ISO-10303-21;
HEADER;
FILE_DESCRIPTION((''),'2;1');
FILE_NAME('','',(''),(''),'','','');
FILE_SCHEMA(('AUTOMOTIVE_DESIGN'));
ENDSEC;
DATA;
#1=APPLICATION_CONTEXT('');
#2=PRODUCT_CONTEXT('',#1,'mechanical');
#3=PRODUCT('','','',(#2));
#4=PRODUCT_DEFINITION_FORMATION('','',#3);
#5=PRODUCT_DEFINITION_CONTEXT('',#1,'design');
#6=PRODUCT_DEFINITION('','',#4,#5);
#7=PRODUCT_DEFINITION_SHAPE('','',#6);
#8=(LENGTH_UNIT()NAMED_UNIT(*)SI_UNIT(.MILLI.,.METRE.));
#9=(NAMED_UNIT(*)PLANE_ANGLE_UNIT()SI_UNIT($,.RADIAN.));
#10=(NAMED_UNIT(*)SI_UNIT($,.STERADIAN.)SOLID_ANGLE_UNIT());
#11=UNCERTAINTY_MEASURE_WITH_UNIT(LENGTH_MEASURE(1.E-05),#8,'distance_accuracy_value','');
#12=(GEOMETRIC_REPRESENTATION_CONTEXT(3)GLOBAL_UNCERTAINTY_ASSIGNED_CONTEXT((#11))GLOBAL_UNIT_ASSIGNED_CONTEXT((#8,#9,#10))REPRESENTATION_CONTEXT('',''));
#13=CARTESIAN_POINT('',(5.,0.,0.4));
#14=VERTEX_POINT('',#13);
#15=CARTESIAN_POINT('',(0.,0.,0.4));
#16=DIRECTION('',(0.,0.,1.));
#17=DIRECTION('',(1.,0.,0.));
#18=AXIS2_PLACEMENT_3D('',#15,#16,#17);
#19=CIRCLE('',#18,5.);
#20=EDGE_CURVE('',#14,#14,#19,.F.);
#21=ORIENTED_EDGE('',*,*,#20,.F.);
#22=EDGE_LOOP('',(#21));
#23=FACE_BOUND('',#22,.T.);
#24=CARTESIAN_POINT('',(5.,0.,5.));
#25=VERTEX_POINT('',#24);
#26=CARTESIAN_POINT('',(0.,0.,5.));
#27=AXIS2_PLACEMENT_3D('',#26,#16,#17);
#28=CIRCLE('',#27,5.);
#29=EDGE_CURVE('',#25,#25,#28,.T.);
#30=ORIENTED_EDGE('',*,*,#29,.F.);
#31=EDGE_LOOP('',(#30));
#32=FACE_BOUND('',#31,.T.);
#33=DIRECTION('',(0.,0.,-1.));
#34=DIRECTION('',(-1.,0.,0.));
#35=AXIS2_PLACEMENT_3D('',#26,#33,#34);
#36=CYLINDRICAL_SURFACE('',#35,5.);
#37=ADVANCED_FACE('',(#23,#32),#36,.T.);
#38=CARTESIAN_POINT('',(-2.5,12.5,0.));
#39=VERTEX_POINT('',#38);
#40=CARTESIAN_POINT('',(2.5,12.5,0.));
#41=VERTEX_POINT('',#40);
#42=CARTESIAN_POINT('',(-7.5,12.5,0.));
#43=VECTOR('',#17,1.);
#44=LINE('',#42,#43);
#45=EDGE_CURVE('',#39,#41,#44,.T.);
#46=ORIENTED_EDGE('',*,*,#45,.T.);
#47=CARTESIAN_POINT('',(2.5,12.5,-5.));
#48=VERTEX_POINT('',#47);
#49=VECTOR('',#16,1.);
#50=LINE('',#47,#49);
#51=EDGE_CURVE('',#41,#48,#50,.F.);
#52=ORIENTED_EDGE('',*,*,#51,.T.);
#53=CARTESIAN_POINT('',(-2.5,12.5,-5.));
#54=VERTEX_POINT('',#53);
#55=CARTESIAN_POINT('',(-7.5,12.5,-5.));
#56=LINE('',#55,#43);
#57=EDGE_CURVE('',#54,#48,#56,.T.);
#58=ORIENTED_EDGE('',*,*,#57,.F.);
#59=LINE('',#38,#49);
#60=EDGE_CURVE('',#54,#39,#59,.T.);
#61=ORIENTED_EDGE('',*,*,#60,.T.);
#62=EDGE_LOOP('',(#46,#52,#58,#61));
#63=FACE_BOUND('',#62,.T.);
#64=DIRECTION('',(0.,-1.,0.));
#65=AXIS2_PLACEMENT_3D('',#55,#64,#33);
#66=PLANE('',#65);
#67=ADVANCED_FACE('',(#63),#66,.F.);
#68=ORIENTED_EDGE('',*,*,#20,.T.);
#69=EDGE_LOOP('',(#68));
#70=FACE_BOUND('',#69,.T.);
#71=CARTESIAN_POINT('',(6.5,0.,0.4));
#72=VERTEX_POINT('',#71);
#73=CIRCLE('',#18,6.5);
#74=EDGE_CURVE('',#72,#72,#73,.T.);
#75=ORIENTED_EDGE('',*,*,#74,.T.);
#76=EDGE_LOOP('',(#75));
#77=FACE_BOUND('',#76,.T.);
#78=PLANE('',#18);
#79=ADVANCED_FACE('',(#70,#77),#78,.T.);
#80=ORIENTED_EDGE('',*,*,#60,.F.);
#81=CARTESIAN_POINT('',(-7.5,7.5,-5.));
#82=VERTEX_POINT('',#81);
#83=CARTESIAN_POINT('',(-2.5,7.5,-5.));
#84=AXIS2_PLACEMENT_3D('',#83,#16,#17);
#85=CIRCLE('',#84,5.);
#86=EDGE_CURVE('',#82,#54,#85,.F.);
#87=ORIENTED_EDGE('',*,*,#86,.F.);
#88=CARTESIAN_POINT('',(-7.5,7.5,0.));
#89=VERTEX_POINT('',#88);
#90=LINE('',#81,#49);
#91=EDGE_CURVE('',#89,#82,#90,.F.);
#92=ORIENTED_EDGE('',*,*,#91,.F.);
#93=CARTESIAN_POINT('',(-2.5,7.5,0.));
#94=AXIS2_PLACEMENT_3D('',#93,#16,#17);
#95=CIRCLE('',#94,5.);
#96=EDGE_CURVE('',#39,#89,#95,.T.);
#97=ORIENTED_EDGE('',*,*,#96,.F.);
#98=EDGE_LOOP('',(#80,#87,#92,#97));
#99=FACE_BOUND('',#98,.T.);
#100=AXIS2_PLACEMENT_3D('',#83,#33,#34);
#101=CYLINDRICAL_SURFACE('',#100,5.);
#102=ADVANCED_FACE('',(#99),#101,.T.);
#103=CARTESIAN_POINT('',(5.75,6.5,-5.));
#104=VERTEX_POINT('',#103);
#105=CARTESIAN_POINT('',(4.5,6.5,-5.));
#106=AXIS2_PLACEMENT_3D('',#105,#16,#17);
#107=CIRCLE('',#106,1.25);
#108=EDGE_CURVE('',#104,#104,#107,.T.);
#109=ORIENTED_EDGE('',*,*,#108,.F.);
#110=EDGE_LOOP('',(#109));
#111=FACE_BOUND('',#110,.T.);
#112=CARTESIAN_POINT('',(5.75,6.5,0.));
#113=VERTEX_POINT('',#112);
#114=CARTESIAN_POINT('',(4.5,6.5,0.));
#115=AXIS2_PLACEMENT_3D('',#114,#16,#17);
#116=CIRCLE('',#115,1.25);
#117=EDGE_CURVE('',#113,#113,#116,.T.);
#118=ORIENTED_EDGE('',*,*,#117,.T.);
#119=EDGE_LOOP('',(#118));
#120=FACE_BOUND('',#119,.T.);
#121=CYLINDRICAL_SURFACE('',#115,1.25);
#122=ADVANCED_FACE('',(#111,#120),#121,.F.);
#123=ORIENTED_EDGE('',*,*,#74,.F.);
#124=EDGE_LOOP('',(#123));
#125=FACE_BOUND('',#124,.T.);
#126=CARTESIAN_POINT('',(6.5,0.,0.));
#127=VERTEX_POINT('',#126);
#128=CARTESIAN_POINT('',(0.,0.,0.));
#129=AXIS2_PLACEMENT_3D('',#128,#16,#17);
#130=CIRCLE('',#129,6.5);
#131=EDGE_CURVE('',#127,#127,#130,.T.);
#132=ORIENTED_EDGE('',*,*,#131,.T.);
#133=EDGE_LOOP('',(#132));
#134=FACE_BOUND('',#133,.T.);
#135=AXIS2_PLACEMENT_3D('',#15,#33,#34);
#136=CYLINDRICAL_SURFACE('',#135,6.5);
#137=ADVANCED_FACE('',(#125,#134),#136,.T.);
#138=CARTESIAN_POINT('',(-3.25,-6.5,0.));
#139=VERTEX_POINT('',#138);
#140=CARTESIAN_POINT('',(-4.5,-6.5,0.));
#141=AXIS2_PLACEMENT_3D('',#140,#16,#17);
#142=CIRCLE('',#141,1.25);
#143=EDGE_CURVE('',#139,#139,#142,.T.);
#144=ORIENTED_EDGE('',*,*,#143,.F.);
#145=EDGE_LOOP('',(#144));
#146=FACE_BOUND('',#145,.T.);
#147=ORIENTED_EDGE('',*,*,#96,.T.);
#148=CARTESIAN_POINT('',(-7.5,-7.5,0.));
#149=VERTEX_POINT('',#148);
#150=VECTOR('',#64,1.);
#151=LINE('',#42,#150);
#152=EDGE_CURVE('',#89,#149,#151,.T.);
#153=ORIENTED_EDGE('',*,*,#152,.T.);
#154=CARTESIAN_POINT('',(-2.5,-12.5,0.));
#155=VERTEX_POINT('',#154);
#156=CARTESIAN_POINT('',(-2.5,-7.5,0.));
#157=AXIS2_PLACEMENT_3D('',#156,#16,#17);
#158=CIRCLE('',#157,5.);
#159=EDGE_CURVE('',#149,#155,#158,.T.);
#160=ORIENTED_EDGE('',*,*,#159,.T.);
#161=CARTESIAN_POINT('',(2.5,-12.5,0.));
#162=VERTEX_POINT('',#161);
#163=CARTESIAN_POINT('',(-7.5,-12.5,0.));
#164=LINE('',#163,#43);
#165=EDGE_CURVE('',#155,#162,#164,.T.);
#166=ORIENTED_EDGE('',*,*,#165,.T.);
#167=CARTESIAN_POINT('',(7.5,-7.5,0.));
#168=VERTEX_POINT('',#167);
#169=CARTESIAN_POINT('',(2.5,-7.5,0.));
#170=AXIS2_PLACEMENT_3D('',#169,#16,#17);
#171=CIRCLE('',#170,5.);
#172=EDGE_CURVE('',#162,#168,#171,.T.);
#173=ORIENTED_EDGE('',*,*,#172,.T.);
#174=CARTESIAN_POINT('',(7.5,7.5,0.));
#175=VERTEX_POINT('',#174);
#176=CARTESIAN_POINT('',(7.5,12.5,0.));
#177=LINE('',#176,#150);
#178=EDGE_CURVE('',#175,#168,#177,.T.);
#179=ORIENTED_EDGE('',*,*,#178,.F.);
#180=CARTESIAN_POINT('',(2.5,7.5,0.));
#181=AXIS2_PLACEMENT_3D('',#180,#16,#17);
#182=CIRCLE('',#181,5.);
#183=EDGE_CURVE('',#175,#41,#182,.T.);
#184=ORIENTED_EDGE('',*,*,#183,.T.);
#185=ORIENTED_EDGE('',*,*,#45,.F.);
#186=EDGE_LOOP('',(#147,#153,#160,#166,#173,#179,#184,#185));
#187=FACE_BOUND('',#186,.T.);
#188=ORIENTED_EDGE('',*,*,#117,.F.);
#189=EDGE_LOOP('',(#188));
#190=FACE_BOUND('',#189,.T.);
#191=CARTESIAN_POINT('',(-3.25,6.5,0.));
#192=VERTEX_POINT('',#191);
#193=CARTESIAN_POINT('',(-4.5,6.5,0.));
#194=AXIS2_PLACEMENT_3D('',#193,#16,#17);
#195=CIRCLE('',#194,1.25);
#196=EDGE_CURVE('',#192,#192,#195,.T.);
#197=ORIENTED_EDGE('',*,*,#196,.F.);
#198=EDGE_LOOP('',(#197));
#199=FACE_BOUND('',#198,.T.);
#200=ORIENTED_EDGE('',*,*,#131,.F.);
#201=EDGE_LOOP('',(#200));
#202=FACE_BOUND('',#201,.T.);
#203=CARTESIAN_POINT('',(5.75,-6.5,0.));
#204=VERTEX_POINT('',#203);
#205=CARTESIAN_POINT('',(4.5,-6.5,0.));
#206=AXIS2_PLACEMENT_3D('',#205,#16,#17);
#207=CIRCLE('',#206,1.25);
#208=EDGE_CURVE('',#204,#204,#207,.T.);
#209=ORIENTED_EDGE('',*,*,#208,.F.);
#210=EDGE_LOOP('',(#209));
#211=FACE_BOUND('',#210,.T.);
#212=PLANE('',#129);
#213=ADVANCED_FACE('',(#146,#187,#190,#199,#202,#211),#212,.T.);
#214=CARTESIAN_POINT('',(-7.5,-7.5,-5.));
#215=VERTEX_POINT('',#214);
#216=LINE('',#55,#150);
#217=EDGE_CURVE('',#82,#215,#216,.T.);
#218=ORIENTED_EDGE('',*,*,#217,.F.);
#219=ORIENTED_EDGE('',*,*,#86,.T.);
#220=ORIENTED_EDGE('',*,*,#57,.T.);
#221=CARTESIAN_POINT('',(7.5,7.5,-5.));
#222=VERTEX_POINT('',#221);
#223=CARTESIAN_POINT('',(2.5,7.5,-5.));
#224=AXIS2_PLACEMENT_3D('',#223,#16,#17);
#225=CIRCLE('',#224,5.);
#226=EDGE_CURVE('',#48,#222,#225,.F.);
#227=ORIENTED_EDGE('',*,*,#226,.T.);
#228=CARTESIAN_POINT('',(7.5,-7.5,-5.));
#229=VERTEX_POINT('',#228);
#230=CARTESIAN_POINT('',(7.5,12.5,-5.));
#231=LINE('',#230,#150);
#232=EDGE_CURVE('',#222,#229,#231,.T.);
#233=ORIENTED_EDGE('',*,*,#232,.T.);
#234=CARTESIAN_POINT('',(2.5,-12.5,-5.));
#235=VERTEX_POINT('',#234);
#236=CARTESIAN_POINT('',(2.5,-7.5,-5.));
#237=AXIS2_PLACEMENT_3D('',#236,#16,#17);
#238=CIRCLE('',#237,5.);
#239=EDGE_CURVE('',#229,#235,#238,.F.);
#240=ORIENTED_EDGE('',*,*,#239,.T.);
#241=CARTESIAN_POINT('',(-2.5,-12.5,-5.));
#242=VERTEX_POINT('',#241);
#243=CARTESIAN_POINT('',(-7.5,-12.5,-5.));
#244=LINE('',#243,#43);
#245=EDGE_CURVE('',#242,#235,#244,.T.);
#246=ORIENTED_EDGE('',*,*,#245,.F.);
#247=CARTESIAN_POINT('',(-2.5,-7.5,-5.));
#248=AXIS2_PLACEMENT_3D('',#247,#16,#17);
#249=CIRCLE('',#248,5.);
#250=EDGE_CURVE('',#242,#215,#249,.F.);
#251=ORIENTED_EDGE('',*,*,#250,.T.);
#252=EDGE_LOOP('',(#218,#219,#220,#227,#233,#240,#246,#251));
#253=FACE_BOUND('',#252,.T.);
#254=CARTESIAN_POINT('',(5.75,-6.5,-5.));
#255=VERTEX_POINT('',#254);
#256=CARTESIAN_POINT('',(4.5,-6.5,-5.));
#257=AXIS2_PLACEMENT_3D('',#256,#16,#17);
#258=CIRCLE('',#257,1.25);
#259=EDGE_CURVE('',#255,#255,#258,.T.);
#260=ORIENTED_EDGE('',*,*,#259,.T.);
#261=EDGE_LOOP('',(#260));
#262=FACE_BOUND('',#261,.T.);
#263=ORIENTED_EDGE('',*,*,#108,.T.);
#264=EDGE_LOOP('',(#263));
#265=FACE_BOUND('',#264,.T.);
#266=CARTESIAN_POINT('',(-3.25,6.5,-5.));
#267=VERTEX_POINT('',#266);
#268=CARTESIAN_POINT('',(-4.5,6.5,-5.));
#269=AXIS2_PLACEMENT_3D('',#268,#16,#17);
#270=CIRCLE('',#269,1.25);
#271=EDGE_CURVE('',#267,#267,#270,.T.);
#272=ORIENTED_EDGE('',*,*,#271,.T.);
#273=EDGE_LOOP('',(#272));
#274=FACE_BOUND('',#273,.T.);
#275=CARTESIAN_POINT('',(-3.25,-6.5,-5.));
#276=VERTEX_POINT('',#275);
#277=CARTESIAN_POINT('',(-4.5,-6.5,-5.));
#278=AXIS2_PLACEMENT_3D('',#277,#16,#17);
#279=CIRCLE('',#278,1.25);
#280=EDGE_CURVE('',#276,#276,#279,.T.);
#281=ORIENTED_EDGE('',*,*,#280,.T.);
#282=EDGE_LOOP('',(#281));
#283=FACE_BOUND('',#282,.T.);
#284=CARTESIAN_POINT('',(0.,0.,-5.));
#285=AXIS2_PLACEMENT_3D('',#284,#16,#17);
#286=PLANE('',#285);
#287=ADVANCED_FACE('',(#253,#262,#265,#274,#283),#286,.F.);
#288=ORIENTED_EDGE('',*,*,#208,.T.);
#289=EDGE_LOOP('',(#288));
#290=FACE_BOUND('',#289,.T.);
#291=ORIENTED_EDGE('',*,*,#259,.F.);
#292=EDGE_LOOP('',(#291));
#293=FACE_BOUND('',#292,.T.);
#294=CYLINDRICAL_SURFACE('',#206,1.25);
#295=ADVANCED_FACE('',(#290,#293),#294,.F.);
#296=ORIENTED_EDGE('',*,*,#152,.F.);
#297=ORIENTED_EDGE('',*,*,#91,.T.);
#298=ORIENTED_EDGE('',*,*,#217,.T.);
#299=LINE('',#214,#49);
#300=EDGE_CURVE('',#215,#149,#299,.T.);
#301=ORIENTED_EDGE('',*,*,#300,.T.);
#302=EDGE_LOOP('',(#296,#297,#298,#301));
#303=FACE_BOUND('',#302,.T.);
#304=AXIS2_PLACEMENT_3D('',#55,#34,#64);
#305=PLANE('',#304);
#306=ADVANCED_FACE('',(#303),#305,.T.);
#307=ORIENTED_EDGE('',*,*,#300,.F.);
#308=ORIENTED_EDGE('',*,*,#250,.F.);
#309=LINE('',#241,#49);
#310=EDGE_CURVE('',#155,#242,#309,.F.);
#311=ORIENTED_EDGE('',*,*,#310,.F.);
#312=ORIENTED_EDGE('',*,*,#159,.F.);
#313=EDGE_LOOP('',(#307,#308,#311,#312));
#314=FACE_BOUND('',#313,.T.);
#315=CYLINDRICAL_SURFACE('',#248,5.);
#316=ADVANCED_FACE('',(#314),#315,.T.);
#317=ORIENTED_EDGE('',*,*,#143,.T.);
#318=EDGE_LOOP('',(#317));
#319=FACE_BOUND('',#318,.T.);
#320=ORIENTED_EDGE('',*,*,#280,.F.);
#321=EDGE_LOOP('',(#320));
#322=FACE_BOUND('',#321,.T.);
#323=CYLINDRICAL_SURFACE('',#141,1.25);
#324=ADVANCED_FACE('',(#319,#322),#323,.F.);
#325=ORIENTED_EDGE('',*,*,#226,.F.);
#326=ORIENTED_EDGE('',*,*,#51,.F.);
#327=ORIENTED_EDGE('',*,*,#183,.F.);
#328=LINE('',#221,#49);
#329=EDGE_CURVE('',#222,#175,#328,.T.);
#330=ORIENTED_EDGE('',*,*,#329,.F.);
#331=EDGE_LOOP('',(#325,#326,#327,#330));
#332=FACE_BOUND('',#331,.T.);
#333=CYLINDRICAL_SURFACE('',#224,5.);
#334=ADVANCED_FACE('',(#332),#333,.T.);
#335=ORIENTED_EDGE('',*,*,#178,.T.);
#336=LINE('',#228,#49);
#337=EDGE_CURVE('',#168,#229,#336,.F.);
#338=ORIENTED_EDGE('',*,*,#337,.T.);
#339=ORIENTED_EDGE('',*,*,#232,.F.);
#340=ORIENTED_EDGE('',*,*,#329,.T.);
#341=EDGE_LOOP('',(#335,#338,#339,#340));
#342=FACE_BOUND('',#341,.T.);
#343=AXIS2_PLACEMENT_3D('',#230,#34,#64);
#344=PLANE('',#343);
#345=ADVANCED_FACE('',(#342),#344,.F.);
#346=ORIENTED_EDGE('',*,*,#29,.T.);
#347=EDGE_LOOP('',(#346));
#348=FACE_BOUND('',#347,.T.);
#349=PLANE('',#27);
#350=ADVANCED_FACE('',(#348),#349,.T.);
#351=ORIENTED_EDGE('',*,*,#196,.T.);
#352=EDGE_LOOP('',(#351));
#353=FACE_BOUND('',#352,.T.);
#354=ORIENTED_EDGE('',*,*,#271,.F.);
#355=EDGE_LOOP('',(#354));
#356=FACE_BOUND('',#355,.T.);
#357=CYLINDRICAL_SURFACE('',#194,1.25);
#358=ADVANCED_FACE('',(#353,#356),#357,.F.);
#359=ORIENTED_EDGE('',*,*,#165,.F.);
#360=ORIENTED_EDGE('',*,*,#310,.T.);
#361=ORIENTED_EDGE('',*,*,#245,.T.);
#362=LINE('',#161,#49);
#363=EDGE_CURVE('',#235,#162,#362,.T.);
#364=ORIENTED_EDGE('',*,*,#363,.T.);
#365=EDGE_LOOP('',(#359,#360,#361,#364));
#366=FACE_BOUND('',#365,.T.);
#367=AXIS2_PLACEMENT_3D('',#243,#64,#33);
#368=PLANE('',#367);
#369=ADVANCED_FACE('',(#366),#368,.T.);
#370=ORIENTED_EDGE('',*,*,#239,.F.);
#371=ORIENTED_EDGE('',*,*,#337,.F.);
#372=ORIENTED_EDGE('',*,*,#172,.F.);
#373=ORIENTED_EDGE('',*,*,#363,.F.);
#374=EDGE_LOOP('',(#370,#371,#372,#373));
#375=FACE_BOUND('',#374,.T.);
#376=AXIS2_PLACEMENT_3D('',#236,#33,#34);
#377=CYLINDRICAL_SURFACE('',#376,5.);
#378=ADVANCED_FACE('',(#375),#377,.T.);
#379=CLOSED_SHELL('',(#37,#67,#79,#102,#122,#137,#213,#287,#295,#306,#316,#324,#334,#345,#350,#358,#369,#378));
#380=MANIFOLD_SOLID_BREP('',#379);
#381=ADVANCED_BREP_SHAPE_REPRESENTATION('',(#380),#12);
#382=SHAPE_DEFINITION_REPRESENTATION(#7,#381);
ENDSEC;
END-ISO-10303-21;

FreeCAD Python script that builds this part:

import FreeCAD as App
import Part
import Sketcher
from FreeCAD import Vector
Q = App.Units.Quantity


def edges_at(feature, points):
    """Names of the edges that pass closest to the given points."""
    edges = feature.Shape.Edges
    near = lambda p: min(range(len(edges)), key=lambda i: edges[i].distToShape(Part.Vertex(*p))[0])
    return sorted({f"Edge{near(p) + 1}" for p in points})


def add_polygon(sketch, points):
    """Adds a closed chain of lines whose ends are joined by coincident constraints."""
    first, n = sketch.GeometryCount, len(points)
    for a, b in zip(points, points[1:] + points[:1]):
        sketch.addGeometry(Part.LineSegment(App.Vector(*a, 0), App.Vector(*b, 0)), False)
    for i in range(n):
        sketch.addConstraint(Sketcher.Constraint("Coincident", first + i, 2, first + (i + 1) % n, 1))

doc = App.newDocument("Part")
body = doc.addObject("PartDesign::Body", "Body")

# Sketch on XY plane
sketch1 = body.newObject("Sketcher::SketchObject", "Sketch")
sketch1.AttachmentSupport = (doc.getObject("XY_Plane"), [""])
sketch1.MapMode = "FlatFace"
add_polygon(sketch1, [(-8, 12), (-8, -12), (8, -12), (8, 12)])  # lines 0-3
sketch1.addConstraint([
    Sketcher.Constraint("Vertical", 0),
    Sketcher.Constraint("Horizontal", 1),
    Sketcher.Constraint("Vertical", 2),
    Sketcher.Constraint("Horizontal", 3),
    Sketcher.Constraint("Symmetric", 0, 2, 2, 2, -1, 1),
    Sketcher.Constraint("DistanceX", 1, 1, 1, 2, Q("15 mm")),
    Sketcher.Constraint("DistanceY", 0, 2, 0, 1, Q("25 mm")),
])
pad1 = body.newObject("PartDesign::Pad", "Pad")
pad1.Profile = sketch1
pad1.Length = 5
pad1.Reversed = True

# Sketch on XY plane
sketch2 = body.newObject("Sketcher::SketchObject", "Sketch001")
sketch2.AttachmentSupport = (doc.getObject("XY_Plane"), [""])
sketch2.MapMode = "FlatFace"
sketch2.addGeometry(Part.Circle(Vector(0, 0, 0), Vector(0, 0, 1), 6), False)
sketch2.addConstraint([
    Sketcher.Constraint("Coincident", 0, 3, -1, 1),
    Sketcher.Constraint("Diameter", 0, Q("13 mm")),
])
pad2 = body.newObject("PartDesign::Pad", "Pad001")
pad2.Profile = sketch2
pad2.Length = 0.4

# Sketch on XY plane
sketch3 = body.newObject("Sketcher::SketchObject", "Sketch002")
sketch3.AttachmentSupport = (doc.getObject("XY_Plane"), [""])
sketch3.MapMode = "FlatFace"
sketch3.addGeometry(Part.Circle(Vector(0, 0, 0), Vector(0, 0, 1), 5), False)
sketch3.addConstraint([
    Sketcher.Constraint("Coincident", 0, 3, -1, 1),
    Sketcher.Constraint("Diameter", 0, Q("10 mm")),
])
pad3 = body.newObject("PartDesign::Pad", "Pad002")
pad3.Profile = sketch3
pad3.Length = 5

# Sketch on XY plane
sketch4 = body.newObject("Sketcher::SketchObject", "Sketch003")
sketch4.AttachmentSupport = (doc.getObject("XY_Plane"), [""])
sketch4.MapMode = "FlatFace"
sketch4.addGeometry([
    Part.Circle(Vector(-4.5, 6.5, 0), Vector(0, 0, 1), 1.2),
    Part.Circle(Vector(4.5, 6.5, 0), Vector(0, 0, 1), 1.2),
    Part.Circle(Vector(4.5, -6.5, 0), Vector(0, 0, 1), 1.2),
    Part.Circle(Vector(-4.5, -6.5, 0), Vector(0, 0, 1), 1.2),
], False)
sketch4.addConstraint([
    Sketcher.Constraint("Equal", 0, 1),
    Sketcher.Constraint("Equal", 1, 2),
    Sketcher.Constraint("Equal", 2, 3),
    Sketcher.Constraint("Symmetric", 0, 3, 2, 3, -1, 1),
    Sketcher.Constraint("Symmetric", 1, 3, 3, 3, -1, 1),
    Sketcher.Constraint("Symmetric", 0, 3, 1, 3, -2),
    Sketcher.Constraint("Diameter", 0, Q("2.5 mm")),
    Sketcher.Constraint("DistanceX", 0, 3, 1, 3, Q("9 mm")),
    Sketcher.Constraint("DistanceY", 2, 3, 1, 3, Q("13 mm")),
])
doc.recompute()
hole = body.newObject("PartDesign::Hole", "Hole")
hole.Profile = sketch4
hole.ThreadType = "None"
hole.Diameter = 2.5
hole.DepthType = "ThroughAll"
doc.recompute()

fillet = body.newObject("PartDesign::Fillet", "Fillet")
fillet.Base = (hole, edges_at(hole, [
    (-7.5, 12.5, -2.5),
    (7.5, 12.5, -2.5),
    (7.5, -12.5, -2.5),
    (-7.5, -12.5, -2.5),
]))
fillet.Radius = 5

doc.recompute()
